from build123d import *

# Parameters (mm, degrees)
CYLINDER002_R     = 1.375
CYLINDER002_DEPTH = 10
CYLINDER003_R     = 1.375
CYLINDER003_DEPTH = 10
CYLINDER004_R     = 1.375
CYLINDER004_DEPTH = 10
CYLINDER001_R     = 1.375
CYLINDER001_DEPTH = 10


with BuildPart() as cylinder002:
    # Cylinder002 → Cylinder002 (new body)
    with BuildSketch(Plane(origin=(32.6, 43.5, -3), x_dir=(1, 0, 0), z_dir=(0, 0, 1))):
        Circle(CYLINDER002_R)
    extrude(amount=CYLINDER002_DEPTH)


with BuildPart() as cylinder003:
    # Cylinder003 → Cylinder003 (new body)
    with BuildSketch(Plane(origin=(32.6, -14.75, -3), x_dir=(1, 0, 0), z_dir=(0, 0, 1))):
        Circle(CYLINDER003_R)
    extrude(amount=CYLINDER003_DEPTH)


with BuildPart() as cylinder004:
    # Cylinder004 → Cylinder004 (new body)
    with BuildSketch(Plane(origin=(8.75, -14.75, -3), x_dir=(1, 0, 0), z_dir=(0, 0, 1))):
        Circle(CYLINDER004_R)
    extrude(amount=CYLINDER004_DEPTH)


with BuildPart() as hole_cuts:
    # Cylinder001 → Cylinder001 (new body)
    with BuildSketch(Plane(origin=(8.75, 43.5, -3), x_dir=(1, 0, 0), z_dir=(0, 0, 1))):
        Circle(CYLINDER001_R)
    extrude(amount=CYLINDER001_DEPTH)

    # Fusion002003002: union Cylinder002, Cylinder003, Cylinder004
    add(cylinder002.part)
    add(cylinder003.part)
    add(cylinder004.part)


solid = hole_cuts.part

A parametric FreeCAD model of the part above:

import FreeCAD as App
import Part
import Sketcher
from FreeCAD import Vector

doc = App.newDocument("Part")
params = doc.addObject("Spreadsheet::Sheet", "Params")
for row, (alias, value) in enumerate([
    ("sketch1_diameter", "2.75 mm"),
    ("pad1_length", "10 mm"),
    ("sketch2_diameter", "2.75 mm"),
    ("pad2_length", "10 mm"),
    ("sketch3_diameter", "2.75 mm"),
    ("pad3_length", "10 mm"),
    ("sketch4_diameter", "2.75 mm"),
    ("pad4_length", "10 mm"),
], start=1):
    params.set(f"A{row}", alias)
    params.set(f"B{row}", "=" + value)
    params.setAlias(f"B{row}", alias)

body = doc.addObject("PartDesign::Body", "Body")

# Sketch on XY plane
sketch1 = body.newObject("Sketcher::SketchObject", "Sketch")
sketch1.AttachmentSupport = (doc.getObject("XY_Plane"), [""])
sketch1.MapMode = "FlatFace"
sketch1.AttachmentOffset = App.Placement(Vector(0, 0, -3), App.Rotation())
sketch1.addGeometry(Part.Circle(Vector(32.6, 43.5, 0), Vector(0, 0, 1), 1.4), False)
sketch1.addConstraint(Sketcher.Constraint("Diameter", 0, 2.75))
sketch1.addConstraint(Sketcher.Constraint("DistanceX", -1, 1, 0, 3, 32.6))
sketch1.addConstraint(Sketcher.Constraint("DistanceY", -1, 1, 0, 3, 43.5))
sketch1.setExpression("Constraints[0]", "Params.sketch1_diameter")
pad1 = body.newObject("PartDesign::Pad", "Pad")
pad1.Profile = sketch1
pad1.setExpression("Length", "Params.pad1_length")
body2 = doc.addObject("PartDesign::Body", "Body001")

# Sketch on XY plane
sketch2 = body2.newObject("Sketcher::SketchObject", "Sketch001")
sketch2.AttachmentSupport = (doc.getObject("XY_Plane001"), [""])
sketch2.MapMode = "FlatFace"
sketch2.AttachmentOffset = App.Placement(Vector(0, 0, -3), App.Rotation())
sketch2.addGeometry(Part.Circle(Vector(32.6, -14.8, 0), Vector(0, 0, 1), 1.4), False)
sketch2.addConstraint(Sketcher.Constraint("Diameter", 0, 2.75))
sketch2.addConstraint(Sketcher.Constraint("DistanceX", -1, 1, 0, 3, 32.6))
sketch2.addConstraint(Sketcher.Constraint("DistanceY", 0, 3, -1, 1, 14.75))
sketch2.setExpression("Constraints[0]", "Params.sketch2_diameter")
pad2 = body2.newObject("PartDesign::Pad", "Pad001")
pad2.Profile = sketch2
pad2.setExpression("Length", "Params.pad2_length")
body3 = doc.addObject("PartDesign::Body", "Body002")

# Sketch on XY plane
sketch3 = body3.newObject("Sketcher::SketchObject", "Sketch002")
sketch3.AttachmentSupport = (doc.getObject("XY_Plane002"), [""])
sketch3.MapMode = "FlatFace"
sketch3.AttachmentOffset = App.Placement(Vector(0, 0, -3), App.Rotation())
sketch3.addGeometry(Part.Circle(Vector(8.8, -14.8, 0), Vector(0, 0, 1), 1.4), False)
sketch3.addConstraint(Sketcher.Constraint("Diameter", 0, 2.75))
sketch3.addConstraint(Sketcher.Constraint("DistanceX", -1, 1, 0, 3, 8.75))
sketch3.addConstraint(Sketcher.Constraint("DistanceY", 0, 3, -1, 1, 14.75))
sketch3.setExpression("Constraints[0]", "Params.sketch3_diameter")
pad3 = body3.newObject("PartDesign::Pad", "Pad002")
pad3.Profile = sketch3
pad3.setExpression("Length", "Params.pad3_length")
body4 = doc.addObject("PartDesign::Body", "Body003")
body4.AllowCompound = True

# Sketch on XY plane
sketch4 = body4.newObject("Sketcher::SketchObject", "Sketch003")
sketch4.AttachmentSupport = (doc.getObject("XY_Plane003"), [""])
sketch4.MapMode = "FlatFace"
sketch4.AttachmentOffset = App.Placement(Vector(0, 0, -3), App.Rotation())
sketch4.addGeometry(Part.Circle(Vector(8.8, 43.5, 0), Vector(0, 0, 1), 1.4), False)
sketch4.addConstraint(Sketcher.Constraint("Diameter", 0, 2.75))
sketch4.addConstraint(Sketcher.Constraint("DistanceY", -1, 1, 0, 3, 43.5))
sketch4.addConstraint(Sketcher.Constraint("DistanceX", -1, 1, 0, 3, 8.75))
sketch4.setExpression("Constraints[0]", "Params.sketch4_diameter")
pad4 = body4.newObject("PartDesign::Pad", "Pad003")
pad4.Profile = sketch4
pad4.setExpression("Length", "Params.pad4_length")
doc.recompute()

boolean = body4.newObject("PartDesign::Boolean", "Boolean")
boolean.Type = "Fuse"
boolean.addObjects([body])
doc.recompute()

boolean2 = body4.newObject("PartDesign::Boolean", "Boolean001")
boolean2.Type = "Fuse"
boolean2.addObjects([body2])
doc.recompute()

boolean3 = body4.newObject("PartDesign::Boolean", "Boolean002")
boolean3.Type = "Fuse"
boolean3.addObjects([body3])

doc.recompute()
